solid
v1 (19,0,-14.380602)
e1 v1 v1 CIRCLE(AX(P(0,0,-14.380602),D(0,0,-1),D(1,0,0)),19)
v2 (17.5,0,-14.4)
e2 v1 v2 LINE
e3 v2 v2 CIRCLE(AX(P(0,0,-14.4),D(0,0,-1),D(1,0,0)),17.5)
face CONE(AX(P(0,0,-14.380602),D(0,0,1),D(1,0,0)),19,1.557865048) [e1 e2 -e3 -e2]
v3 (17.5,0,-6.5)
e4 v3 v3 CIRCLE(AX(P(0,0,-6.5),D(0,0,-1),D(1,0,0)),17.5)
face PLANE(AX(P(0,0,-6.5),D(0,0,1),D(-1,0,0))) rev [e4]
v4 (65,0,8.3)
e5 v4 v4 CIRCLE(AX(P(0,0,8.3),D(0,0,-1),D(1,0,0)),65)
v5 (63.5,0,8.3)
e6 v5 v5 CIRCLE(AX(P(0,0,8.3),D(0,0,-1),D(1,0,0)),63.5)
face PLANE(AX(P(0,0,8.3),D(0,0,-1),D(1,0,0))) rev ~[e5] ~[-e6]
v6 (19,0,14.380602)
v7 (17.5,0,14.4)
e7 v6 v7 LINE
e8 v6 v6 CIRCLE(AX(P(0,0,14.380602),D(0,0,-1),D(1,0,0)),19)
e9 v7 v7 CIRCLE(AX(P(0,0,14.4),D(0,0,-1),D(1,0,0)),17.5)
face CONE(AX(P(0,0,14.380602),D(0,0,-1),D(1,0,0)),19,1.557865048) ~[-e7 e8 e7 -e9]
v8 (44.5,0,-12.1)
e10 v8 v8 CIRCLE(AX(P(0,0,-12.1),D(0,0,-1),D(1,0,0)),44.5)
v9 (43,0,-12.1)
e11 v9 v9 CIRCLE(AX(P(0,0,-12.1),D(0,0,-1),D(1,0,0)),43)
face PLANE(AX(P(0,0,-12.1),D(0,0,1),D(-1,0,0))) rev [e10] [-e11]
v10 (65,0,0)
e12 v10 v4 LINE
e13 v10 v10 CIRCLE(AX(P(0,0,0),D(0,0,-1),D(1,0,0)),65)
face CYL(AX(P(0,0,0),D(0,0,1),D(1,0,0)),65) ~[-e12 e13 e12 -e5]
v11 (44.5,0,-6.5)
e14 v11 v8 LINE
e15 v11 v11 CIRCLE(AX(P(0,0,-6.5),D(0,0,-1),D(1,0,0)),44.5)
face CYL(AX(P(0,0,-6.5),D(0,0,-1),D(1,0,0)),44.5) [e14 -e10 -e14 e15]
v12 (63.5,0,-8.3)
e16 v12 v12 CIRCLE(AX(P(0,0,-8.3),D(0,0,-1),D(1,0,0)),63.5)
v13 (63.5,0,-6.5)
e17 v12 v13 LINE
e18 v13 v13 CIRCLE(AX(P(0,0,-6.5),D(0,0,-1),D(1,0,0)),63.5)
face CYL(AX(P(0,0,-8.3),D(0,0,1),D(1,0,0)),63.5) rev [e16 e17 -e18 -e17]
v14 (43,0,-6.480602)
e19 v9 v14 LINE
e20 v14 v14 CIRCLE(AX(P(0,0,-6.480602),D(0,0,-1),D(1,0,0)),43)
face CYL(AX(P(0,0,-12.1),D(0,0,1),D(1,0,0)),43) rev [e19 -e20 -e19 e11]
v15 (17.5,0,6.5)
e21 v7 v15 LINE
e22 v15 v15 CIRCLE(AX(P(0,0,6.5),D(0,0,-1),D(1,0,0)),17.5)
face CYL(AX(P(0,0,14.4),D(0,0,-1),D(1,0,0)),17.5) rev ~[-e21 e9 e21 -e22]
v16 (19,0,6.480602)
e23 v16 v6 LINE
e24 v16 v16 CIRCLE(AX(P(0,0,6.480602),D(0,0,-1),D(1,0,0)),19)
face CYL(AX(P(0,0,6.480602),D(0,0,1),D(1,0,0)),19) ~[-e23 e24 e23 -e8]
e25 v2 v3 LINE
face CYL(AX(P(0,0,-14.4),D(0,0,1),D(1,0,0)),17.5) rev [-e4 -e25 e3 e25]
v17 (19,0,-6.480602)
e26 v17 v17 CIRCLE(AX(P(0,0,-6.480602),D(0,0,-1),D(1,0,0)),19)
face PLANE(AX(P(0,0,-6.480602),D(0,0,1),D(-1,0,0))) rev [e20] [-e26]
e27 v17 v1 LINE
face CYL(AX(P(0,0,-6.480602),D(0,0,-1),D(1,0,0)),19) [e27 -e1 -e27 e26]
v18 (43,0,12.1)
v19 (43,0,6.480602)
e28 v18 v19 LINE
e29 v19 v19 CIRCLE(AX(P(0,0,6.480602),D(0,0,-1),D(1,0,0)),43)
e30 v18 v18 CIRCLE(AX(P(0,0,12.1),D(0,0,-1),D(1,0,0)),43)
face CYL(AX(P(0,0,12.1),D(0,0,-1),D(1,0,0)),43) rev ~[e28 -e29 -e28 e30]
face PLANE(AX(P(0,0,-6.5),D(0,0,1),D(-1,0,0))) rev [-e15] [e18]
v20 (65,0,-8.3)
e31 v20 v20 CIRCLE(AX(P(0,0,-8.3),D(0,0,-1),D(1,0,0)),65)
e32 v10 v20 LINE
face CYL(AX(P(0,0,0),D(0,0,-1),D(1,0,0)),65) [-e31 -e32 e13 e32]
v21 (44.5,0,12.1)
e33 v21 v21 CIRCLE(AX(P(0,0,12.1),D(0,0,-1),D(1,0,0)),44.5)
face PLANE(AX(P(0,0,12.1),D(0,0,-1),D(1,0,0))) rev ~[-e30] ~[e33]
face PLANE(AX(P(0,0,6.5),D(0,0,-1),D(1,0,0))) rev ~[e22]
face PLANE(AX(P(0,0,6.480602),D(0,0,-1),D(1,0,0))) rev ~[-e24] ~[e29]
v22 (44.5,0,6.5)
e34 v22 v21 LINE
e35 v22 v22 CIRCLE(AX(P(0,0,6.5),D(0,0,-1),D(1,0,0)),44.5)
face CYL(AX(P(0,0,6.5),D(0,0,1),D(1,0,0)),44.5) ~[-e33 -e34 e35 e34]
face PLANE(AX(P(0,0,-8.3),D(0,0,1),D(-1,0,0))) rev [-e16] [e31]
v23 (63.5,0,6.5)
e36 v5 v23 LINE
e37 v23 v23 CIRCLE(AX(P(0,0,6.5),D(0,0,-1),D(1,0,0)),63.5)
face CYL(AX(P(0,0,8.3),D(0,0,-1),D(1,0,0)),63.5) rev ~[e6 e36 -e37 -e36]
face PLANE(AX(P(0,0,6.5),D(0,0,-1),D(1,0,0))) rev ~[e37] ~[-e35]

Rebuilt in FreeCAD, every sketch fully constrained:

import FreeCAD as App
import Part
import Sketcher

V = App.Vector


def add_polygon(sketch, points):
    """Adds a closed chain of lines whose ends are joined by coincident constraints."""
    first, n = sketch.GeometryCount, len(points)
    for a, b in zip(points, points[1:] + points[:1]):
        sketch.addGeometry(Part.LineSegment(App.Vector(*a, 0), App.Vector(*b, 0)), False)
    for i in range(n):
        sketch.addConstraint(Sketcher.Constraint("Coincident", first + i, 2, first + (i + 1) % n, 1))

doc = App.newDocument("Part")
body = doc.addObject("PartDesign::Body", "Body")

# Sketch on XZ plane
sketch1 = doc.addObject("Sketcher::SketchObject", "Sketch")
body.addObject(sketch1)
sketch1.AttachmentSupport = (doc.XZ_Plane, [""])
sketch1.MapMode = "FlatFace"
add_polygon(sketch1, [(0, 6.5), (0, 0), (65, 0), (65, 8.3), (63.5, 8.3), (63.5, 6.5), (44.5, 6.5), (44.5, 12.1), (43, 12.1), (43, 6.5), (19, 6.5), (19, 14.4), (17.5, 14.4), (17.5, 6.5)])  # lines 0-13
sketch1.addConstraint(Sketcher.Constraint("Vertical", 0))
sketch1.addConstraint(Sketcher.Constraint("Horizontal", 1))
sketch1.addConstraint(Sketcher.Constraint("Vertical", 2))
sketch1.addConstraint(Sketcher.Constraint("Horizontal", 3))
sketch1.addConstraint(Sketcher.Constraint("Vertical", 4))
sketch1.addConstraint(Sketcher.Constraint("Horizontal", 5))
sketch1.addConstraint(Sketcher.Constraint("Vertical", 6))
sketch1.addConstraint(Sketcher.Constraint("Horizontal", 7))
sketch1.addConstraint(Sketcher.Constraint("Vertical", 8))
sketch1.addConstraint(Sketcher.Constraint("Horizontal", 9))
sketch1.addConstraint(Sketcher.Constraint("Vertical", 10))
sketch1.addConstraint(Sketcher.Constraint("Vertical", 12))
sketch1.addConstraint(Sketcher.Constraint("Horizontal", 13))
sketch1.addConstraint(Sketcher.Constraint("Coincident", 0, 2, -1, 1))
sketch1.addConstraint(Sketcher.Constraint("Horizontal", 5, 2, 12, 2))
sketch1.addConstraint(Sketcher.Constraint("Equal", 3, 7))
sketch1.addConstraint(Sketcher.Constraint("Equal", 10, 12))
sketch1.addConstraint(Sketcher.Constraint("DistanceX", 1, 1, 1, 2, 65.0))
sketch1.addConstraint(Sketcher.Constraint("DistanceX", 5, 2, 5, 1, 19.0))
sketch1.addConstraint(Sketcher.Constraint("DistanceX", 9, 2, 9, 1, 24.0))
sketch1.addConstraint(Sketcher.Constraint("DistanceX", 3, 2, 3, 1, 1.5))
sketch1.addConstraint(Sketcher.Constraint("DistanceX", 13, 2, 13, 1, 17.5))
sketch1.addConstraint(Sketcher.Constraint("DistanceY", 0, 2, 0, 1, 6.5))
sketch1.addConstraint(Sketcher.Constraint("DistanceY", 2, 1, 2, 2, 8.3))
sketch1.addConstraint(Sketcher.Constraint("DistanceY", 6, 1, 6, 2, 5.6))
sketch1.addConstraint(Sketcher.Constraint("DistanceY", 10, 1, 10, 2, 7.9))
sketch1.addConstraint(Sketcher.Constraint("DistanceY", 8, 2, 3, 2, 1.819398))
revolution = doc.addObject("PartDesign::Revolution", "Revolution")
body.addObject(revolution)
revolution.Profile = sketch1
revolution.ReferenceAxis = (sketch1, ["V_Axis"])
revolution.Angle = 360
body2 = doc.addObject("PartDesign::Body", "Body001")
doc.recompute()

body2.BaseFeature = body
doc.recompute()

mirroring = doc.addObject("Part::Mirroring", "Mirroring")
mirroring.Source = body
mirroring.Base = V(0, 0, 0)
mirroring.Normal = V(0, 0, 1)
body3 = doc.addObject("PartDesign::Body", "Body002")
body3.BaseFeature = mirroring
boolean = doc.addObject("PartDesign::Boolean", "Boolean")
body2.addObject(boolean)
boolean.Type = "Fuse"
boolean.addObjects([body3])
doc.recompute()
mirroring.Visibility = False

doc.recompute()
